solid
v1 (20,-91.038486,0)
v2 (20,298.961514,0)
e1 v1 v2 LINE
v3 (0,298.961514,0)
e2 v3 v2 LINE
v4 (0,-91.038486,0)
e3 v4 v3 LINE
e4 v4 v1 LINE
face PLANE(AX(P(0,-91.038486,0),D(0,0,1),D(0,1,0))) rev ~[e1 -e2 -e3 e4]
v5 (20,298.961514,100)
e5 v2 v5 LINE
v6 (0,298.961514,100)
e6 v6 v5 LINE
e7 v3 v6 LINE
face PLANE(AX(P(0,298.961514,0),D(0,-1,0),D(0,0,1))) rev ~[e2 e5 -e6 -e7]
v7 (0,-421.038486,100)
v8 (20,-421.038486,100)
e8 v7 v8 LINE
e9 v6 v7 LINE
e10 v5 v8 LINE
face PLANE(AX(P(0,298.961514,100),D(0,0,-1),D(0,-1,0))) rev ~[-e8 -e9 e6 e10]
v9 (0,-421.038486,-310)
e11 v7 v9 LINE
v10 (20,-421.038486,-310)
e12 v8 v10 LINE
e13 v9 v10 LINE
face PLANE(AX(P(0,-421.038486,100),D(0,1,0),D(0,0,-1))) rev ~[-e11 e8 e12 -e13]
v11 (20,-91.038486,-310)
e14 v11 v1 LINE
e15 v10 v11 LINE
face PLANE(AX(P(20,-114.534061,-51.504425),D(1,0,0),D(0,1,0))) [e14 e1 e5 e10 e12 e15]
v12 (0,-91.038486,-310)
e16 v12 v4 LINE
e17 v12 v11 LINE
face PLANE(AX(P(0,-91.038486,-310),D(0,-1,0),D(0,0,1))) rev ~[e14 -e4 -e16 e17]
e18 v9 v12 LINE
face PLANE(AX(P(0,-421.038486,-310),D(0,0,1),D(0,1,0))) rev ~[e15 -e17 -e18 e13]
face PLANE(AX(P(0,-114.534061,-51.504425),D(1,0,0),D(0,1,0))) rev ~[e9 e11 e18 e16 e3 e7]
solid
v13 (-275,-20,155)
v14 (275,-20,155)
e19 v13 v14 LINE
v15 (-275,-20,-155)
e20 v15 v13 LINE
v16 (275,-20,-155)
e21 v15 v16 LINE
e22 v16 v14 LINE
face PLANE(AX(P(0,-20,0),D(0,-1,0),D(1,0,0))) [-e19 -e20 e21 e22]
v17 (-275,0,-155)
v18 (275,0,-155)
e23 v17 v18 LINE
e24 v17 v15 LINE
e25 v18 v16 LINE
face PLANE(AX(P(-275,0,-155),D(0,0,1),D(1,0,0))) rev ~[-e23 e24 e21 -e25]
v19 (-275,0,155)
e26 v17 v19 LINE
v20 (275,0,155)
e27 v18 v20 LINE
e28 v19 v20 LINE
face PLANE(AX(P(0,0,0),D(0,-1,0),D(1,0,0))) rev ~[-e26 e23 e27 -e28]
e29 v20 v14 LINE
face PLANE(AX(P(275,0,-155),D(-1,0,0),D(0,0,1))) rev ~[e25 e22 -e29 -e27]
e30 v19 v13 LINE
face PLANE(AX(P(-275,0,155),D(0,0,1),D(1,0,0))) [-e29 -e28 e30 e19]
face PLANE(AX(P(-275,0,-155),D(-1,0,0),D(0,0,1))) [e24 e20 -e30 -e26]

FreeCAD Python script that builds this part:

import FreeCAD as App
import Part
import Sketcher

V = App.Vector


def add_polygon(sketch, points):
    """Adds a closed chain of lines whose ends are joined by coincident constraints."""
    first, n = sketch.GeometryCount, len(points)
    for a, b in zip(points, points[1:] + points[:1]):
        sketch.addGeometry(Part.LineSegment(App.Vector(*a, 0), App.Vector(*b, 0)), False)
    for i in range(n):
        sketch.addConstraint(Sketcher.Constraint("Coincident", first + i, 2, first + (i + 1) % n, 1))

doc = App.newDocument("Part")
body = doc.addObject("PartDesign::Body", "Body")

sketch1 = doc.addObject("Sketcher::SketchObject", "Sketch")
body.addObject(sketch1)
sketch1.AttachmentSupport = (doc.YZ_Plane, [""])
sketch1.MapMode = "FlatFace"
add_polygon(sketch1, [(299, 100), (-421, 100), (-421, -310), (-91, -310), (-91, 0), (299, 0)])
sketch1.addConstraint([
    Sketcher.Constraint("Horizontal", 0),
    Sketcher.Constraint("Vertical", 1),
    Sketcher.Constraint("Horizontal", 2),
    Sketcher.Constraint("Vertical", 3),
    Sketcher.Constraint("Horizontal", 4),
    Sketcher.Constraint("Vertical", 5),
    Sketcher.Constraint("PointOnObject", 3, 2, -1),
    Sketcher.Constraint("DistanceX", 0, 2, 0, 1, 720.0),
    Sketcher.Constraint("DistanceX", 2, 1, 2, 2, 330.0),
    Sketcher.Constraint("DistanceY", 1, 2, 1, 1, 410.0),
    Sketcher.Constraint("DistanceY", 3, 1, 3, 2, 310.0),
    Sketcher.Constraint("DistanceX", 0, 2, -1, 1, 421.038486),
])
pad1 = doc.addObject("PartDesign::Pad", "Pad")
body.addObject(pad1)
pad1.Profile = sketch1
pad1.Length = 20
body2 = doc.addObject("PartDesign::Body", "Body001")

sketch2 = doc.addObject("Sketcher::SketchObject", "Sketch001")
body2.addObject(sketch2)
sketch2.AttachmentSupport = (doc.getObject("XZ_Plane001"), [""])
sketch2.MapMode = "FlatFace"
add_polygon(sketch2, [(-275, 155), (-275, -155), (275, -155), (275, 155)])
sketch2.addConstraint([
    Sketcher.Constraint("Vertical", 0),
    Sketcher.Constraint("Horizontal", 1),
    Sketcher.Constraint("Vertical", 2),
    Sketcher.Constraint("Horizontal", 3),
    Sketcher.Constraint("Symmetric", 0, 2, 2, 2, -1, 1),
    Sketcher.Constraint("DistanceX", 1, 1, 1, 2, 550.0),
    Sketcher.Constraint("DistanceY", 0, 2, 0, 1, 310.0),
])
pad2 = doc.addObject("PartDesign::Pad", "Pad001")
body2.addObject(pad2)
pad2.Profile = sketch2
pad2.Length = 20

doc.recompute()
